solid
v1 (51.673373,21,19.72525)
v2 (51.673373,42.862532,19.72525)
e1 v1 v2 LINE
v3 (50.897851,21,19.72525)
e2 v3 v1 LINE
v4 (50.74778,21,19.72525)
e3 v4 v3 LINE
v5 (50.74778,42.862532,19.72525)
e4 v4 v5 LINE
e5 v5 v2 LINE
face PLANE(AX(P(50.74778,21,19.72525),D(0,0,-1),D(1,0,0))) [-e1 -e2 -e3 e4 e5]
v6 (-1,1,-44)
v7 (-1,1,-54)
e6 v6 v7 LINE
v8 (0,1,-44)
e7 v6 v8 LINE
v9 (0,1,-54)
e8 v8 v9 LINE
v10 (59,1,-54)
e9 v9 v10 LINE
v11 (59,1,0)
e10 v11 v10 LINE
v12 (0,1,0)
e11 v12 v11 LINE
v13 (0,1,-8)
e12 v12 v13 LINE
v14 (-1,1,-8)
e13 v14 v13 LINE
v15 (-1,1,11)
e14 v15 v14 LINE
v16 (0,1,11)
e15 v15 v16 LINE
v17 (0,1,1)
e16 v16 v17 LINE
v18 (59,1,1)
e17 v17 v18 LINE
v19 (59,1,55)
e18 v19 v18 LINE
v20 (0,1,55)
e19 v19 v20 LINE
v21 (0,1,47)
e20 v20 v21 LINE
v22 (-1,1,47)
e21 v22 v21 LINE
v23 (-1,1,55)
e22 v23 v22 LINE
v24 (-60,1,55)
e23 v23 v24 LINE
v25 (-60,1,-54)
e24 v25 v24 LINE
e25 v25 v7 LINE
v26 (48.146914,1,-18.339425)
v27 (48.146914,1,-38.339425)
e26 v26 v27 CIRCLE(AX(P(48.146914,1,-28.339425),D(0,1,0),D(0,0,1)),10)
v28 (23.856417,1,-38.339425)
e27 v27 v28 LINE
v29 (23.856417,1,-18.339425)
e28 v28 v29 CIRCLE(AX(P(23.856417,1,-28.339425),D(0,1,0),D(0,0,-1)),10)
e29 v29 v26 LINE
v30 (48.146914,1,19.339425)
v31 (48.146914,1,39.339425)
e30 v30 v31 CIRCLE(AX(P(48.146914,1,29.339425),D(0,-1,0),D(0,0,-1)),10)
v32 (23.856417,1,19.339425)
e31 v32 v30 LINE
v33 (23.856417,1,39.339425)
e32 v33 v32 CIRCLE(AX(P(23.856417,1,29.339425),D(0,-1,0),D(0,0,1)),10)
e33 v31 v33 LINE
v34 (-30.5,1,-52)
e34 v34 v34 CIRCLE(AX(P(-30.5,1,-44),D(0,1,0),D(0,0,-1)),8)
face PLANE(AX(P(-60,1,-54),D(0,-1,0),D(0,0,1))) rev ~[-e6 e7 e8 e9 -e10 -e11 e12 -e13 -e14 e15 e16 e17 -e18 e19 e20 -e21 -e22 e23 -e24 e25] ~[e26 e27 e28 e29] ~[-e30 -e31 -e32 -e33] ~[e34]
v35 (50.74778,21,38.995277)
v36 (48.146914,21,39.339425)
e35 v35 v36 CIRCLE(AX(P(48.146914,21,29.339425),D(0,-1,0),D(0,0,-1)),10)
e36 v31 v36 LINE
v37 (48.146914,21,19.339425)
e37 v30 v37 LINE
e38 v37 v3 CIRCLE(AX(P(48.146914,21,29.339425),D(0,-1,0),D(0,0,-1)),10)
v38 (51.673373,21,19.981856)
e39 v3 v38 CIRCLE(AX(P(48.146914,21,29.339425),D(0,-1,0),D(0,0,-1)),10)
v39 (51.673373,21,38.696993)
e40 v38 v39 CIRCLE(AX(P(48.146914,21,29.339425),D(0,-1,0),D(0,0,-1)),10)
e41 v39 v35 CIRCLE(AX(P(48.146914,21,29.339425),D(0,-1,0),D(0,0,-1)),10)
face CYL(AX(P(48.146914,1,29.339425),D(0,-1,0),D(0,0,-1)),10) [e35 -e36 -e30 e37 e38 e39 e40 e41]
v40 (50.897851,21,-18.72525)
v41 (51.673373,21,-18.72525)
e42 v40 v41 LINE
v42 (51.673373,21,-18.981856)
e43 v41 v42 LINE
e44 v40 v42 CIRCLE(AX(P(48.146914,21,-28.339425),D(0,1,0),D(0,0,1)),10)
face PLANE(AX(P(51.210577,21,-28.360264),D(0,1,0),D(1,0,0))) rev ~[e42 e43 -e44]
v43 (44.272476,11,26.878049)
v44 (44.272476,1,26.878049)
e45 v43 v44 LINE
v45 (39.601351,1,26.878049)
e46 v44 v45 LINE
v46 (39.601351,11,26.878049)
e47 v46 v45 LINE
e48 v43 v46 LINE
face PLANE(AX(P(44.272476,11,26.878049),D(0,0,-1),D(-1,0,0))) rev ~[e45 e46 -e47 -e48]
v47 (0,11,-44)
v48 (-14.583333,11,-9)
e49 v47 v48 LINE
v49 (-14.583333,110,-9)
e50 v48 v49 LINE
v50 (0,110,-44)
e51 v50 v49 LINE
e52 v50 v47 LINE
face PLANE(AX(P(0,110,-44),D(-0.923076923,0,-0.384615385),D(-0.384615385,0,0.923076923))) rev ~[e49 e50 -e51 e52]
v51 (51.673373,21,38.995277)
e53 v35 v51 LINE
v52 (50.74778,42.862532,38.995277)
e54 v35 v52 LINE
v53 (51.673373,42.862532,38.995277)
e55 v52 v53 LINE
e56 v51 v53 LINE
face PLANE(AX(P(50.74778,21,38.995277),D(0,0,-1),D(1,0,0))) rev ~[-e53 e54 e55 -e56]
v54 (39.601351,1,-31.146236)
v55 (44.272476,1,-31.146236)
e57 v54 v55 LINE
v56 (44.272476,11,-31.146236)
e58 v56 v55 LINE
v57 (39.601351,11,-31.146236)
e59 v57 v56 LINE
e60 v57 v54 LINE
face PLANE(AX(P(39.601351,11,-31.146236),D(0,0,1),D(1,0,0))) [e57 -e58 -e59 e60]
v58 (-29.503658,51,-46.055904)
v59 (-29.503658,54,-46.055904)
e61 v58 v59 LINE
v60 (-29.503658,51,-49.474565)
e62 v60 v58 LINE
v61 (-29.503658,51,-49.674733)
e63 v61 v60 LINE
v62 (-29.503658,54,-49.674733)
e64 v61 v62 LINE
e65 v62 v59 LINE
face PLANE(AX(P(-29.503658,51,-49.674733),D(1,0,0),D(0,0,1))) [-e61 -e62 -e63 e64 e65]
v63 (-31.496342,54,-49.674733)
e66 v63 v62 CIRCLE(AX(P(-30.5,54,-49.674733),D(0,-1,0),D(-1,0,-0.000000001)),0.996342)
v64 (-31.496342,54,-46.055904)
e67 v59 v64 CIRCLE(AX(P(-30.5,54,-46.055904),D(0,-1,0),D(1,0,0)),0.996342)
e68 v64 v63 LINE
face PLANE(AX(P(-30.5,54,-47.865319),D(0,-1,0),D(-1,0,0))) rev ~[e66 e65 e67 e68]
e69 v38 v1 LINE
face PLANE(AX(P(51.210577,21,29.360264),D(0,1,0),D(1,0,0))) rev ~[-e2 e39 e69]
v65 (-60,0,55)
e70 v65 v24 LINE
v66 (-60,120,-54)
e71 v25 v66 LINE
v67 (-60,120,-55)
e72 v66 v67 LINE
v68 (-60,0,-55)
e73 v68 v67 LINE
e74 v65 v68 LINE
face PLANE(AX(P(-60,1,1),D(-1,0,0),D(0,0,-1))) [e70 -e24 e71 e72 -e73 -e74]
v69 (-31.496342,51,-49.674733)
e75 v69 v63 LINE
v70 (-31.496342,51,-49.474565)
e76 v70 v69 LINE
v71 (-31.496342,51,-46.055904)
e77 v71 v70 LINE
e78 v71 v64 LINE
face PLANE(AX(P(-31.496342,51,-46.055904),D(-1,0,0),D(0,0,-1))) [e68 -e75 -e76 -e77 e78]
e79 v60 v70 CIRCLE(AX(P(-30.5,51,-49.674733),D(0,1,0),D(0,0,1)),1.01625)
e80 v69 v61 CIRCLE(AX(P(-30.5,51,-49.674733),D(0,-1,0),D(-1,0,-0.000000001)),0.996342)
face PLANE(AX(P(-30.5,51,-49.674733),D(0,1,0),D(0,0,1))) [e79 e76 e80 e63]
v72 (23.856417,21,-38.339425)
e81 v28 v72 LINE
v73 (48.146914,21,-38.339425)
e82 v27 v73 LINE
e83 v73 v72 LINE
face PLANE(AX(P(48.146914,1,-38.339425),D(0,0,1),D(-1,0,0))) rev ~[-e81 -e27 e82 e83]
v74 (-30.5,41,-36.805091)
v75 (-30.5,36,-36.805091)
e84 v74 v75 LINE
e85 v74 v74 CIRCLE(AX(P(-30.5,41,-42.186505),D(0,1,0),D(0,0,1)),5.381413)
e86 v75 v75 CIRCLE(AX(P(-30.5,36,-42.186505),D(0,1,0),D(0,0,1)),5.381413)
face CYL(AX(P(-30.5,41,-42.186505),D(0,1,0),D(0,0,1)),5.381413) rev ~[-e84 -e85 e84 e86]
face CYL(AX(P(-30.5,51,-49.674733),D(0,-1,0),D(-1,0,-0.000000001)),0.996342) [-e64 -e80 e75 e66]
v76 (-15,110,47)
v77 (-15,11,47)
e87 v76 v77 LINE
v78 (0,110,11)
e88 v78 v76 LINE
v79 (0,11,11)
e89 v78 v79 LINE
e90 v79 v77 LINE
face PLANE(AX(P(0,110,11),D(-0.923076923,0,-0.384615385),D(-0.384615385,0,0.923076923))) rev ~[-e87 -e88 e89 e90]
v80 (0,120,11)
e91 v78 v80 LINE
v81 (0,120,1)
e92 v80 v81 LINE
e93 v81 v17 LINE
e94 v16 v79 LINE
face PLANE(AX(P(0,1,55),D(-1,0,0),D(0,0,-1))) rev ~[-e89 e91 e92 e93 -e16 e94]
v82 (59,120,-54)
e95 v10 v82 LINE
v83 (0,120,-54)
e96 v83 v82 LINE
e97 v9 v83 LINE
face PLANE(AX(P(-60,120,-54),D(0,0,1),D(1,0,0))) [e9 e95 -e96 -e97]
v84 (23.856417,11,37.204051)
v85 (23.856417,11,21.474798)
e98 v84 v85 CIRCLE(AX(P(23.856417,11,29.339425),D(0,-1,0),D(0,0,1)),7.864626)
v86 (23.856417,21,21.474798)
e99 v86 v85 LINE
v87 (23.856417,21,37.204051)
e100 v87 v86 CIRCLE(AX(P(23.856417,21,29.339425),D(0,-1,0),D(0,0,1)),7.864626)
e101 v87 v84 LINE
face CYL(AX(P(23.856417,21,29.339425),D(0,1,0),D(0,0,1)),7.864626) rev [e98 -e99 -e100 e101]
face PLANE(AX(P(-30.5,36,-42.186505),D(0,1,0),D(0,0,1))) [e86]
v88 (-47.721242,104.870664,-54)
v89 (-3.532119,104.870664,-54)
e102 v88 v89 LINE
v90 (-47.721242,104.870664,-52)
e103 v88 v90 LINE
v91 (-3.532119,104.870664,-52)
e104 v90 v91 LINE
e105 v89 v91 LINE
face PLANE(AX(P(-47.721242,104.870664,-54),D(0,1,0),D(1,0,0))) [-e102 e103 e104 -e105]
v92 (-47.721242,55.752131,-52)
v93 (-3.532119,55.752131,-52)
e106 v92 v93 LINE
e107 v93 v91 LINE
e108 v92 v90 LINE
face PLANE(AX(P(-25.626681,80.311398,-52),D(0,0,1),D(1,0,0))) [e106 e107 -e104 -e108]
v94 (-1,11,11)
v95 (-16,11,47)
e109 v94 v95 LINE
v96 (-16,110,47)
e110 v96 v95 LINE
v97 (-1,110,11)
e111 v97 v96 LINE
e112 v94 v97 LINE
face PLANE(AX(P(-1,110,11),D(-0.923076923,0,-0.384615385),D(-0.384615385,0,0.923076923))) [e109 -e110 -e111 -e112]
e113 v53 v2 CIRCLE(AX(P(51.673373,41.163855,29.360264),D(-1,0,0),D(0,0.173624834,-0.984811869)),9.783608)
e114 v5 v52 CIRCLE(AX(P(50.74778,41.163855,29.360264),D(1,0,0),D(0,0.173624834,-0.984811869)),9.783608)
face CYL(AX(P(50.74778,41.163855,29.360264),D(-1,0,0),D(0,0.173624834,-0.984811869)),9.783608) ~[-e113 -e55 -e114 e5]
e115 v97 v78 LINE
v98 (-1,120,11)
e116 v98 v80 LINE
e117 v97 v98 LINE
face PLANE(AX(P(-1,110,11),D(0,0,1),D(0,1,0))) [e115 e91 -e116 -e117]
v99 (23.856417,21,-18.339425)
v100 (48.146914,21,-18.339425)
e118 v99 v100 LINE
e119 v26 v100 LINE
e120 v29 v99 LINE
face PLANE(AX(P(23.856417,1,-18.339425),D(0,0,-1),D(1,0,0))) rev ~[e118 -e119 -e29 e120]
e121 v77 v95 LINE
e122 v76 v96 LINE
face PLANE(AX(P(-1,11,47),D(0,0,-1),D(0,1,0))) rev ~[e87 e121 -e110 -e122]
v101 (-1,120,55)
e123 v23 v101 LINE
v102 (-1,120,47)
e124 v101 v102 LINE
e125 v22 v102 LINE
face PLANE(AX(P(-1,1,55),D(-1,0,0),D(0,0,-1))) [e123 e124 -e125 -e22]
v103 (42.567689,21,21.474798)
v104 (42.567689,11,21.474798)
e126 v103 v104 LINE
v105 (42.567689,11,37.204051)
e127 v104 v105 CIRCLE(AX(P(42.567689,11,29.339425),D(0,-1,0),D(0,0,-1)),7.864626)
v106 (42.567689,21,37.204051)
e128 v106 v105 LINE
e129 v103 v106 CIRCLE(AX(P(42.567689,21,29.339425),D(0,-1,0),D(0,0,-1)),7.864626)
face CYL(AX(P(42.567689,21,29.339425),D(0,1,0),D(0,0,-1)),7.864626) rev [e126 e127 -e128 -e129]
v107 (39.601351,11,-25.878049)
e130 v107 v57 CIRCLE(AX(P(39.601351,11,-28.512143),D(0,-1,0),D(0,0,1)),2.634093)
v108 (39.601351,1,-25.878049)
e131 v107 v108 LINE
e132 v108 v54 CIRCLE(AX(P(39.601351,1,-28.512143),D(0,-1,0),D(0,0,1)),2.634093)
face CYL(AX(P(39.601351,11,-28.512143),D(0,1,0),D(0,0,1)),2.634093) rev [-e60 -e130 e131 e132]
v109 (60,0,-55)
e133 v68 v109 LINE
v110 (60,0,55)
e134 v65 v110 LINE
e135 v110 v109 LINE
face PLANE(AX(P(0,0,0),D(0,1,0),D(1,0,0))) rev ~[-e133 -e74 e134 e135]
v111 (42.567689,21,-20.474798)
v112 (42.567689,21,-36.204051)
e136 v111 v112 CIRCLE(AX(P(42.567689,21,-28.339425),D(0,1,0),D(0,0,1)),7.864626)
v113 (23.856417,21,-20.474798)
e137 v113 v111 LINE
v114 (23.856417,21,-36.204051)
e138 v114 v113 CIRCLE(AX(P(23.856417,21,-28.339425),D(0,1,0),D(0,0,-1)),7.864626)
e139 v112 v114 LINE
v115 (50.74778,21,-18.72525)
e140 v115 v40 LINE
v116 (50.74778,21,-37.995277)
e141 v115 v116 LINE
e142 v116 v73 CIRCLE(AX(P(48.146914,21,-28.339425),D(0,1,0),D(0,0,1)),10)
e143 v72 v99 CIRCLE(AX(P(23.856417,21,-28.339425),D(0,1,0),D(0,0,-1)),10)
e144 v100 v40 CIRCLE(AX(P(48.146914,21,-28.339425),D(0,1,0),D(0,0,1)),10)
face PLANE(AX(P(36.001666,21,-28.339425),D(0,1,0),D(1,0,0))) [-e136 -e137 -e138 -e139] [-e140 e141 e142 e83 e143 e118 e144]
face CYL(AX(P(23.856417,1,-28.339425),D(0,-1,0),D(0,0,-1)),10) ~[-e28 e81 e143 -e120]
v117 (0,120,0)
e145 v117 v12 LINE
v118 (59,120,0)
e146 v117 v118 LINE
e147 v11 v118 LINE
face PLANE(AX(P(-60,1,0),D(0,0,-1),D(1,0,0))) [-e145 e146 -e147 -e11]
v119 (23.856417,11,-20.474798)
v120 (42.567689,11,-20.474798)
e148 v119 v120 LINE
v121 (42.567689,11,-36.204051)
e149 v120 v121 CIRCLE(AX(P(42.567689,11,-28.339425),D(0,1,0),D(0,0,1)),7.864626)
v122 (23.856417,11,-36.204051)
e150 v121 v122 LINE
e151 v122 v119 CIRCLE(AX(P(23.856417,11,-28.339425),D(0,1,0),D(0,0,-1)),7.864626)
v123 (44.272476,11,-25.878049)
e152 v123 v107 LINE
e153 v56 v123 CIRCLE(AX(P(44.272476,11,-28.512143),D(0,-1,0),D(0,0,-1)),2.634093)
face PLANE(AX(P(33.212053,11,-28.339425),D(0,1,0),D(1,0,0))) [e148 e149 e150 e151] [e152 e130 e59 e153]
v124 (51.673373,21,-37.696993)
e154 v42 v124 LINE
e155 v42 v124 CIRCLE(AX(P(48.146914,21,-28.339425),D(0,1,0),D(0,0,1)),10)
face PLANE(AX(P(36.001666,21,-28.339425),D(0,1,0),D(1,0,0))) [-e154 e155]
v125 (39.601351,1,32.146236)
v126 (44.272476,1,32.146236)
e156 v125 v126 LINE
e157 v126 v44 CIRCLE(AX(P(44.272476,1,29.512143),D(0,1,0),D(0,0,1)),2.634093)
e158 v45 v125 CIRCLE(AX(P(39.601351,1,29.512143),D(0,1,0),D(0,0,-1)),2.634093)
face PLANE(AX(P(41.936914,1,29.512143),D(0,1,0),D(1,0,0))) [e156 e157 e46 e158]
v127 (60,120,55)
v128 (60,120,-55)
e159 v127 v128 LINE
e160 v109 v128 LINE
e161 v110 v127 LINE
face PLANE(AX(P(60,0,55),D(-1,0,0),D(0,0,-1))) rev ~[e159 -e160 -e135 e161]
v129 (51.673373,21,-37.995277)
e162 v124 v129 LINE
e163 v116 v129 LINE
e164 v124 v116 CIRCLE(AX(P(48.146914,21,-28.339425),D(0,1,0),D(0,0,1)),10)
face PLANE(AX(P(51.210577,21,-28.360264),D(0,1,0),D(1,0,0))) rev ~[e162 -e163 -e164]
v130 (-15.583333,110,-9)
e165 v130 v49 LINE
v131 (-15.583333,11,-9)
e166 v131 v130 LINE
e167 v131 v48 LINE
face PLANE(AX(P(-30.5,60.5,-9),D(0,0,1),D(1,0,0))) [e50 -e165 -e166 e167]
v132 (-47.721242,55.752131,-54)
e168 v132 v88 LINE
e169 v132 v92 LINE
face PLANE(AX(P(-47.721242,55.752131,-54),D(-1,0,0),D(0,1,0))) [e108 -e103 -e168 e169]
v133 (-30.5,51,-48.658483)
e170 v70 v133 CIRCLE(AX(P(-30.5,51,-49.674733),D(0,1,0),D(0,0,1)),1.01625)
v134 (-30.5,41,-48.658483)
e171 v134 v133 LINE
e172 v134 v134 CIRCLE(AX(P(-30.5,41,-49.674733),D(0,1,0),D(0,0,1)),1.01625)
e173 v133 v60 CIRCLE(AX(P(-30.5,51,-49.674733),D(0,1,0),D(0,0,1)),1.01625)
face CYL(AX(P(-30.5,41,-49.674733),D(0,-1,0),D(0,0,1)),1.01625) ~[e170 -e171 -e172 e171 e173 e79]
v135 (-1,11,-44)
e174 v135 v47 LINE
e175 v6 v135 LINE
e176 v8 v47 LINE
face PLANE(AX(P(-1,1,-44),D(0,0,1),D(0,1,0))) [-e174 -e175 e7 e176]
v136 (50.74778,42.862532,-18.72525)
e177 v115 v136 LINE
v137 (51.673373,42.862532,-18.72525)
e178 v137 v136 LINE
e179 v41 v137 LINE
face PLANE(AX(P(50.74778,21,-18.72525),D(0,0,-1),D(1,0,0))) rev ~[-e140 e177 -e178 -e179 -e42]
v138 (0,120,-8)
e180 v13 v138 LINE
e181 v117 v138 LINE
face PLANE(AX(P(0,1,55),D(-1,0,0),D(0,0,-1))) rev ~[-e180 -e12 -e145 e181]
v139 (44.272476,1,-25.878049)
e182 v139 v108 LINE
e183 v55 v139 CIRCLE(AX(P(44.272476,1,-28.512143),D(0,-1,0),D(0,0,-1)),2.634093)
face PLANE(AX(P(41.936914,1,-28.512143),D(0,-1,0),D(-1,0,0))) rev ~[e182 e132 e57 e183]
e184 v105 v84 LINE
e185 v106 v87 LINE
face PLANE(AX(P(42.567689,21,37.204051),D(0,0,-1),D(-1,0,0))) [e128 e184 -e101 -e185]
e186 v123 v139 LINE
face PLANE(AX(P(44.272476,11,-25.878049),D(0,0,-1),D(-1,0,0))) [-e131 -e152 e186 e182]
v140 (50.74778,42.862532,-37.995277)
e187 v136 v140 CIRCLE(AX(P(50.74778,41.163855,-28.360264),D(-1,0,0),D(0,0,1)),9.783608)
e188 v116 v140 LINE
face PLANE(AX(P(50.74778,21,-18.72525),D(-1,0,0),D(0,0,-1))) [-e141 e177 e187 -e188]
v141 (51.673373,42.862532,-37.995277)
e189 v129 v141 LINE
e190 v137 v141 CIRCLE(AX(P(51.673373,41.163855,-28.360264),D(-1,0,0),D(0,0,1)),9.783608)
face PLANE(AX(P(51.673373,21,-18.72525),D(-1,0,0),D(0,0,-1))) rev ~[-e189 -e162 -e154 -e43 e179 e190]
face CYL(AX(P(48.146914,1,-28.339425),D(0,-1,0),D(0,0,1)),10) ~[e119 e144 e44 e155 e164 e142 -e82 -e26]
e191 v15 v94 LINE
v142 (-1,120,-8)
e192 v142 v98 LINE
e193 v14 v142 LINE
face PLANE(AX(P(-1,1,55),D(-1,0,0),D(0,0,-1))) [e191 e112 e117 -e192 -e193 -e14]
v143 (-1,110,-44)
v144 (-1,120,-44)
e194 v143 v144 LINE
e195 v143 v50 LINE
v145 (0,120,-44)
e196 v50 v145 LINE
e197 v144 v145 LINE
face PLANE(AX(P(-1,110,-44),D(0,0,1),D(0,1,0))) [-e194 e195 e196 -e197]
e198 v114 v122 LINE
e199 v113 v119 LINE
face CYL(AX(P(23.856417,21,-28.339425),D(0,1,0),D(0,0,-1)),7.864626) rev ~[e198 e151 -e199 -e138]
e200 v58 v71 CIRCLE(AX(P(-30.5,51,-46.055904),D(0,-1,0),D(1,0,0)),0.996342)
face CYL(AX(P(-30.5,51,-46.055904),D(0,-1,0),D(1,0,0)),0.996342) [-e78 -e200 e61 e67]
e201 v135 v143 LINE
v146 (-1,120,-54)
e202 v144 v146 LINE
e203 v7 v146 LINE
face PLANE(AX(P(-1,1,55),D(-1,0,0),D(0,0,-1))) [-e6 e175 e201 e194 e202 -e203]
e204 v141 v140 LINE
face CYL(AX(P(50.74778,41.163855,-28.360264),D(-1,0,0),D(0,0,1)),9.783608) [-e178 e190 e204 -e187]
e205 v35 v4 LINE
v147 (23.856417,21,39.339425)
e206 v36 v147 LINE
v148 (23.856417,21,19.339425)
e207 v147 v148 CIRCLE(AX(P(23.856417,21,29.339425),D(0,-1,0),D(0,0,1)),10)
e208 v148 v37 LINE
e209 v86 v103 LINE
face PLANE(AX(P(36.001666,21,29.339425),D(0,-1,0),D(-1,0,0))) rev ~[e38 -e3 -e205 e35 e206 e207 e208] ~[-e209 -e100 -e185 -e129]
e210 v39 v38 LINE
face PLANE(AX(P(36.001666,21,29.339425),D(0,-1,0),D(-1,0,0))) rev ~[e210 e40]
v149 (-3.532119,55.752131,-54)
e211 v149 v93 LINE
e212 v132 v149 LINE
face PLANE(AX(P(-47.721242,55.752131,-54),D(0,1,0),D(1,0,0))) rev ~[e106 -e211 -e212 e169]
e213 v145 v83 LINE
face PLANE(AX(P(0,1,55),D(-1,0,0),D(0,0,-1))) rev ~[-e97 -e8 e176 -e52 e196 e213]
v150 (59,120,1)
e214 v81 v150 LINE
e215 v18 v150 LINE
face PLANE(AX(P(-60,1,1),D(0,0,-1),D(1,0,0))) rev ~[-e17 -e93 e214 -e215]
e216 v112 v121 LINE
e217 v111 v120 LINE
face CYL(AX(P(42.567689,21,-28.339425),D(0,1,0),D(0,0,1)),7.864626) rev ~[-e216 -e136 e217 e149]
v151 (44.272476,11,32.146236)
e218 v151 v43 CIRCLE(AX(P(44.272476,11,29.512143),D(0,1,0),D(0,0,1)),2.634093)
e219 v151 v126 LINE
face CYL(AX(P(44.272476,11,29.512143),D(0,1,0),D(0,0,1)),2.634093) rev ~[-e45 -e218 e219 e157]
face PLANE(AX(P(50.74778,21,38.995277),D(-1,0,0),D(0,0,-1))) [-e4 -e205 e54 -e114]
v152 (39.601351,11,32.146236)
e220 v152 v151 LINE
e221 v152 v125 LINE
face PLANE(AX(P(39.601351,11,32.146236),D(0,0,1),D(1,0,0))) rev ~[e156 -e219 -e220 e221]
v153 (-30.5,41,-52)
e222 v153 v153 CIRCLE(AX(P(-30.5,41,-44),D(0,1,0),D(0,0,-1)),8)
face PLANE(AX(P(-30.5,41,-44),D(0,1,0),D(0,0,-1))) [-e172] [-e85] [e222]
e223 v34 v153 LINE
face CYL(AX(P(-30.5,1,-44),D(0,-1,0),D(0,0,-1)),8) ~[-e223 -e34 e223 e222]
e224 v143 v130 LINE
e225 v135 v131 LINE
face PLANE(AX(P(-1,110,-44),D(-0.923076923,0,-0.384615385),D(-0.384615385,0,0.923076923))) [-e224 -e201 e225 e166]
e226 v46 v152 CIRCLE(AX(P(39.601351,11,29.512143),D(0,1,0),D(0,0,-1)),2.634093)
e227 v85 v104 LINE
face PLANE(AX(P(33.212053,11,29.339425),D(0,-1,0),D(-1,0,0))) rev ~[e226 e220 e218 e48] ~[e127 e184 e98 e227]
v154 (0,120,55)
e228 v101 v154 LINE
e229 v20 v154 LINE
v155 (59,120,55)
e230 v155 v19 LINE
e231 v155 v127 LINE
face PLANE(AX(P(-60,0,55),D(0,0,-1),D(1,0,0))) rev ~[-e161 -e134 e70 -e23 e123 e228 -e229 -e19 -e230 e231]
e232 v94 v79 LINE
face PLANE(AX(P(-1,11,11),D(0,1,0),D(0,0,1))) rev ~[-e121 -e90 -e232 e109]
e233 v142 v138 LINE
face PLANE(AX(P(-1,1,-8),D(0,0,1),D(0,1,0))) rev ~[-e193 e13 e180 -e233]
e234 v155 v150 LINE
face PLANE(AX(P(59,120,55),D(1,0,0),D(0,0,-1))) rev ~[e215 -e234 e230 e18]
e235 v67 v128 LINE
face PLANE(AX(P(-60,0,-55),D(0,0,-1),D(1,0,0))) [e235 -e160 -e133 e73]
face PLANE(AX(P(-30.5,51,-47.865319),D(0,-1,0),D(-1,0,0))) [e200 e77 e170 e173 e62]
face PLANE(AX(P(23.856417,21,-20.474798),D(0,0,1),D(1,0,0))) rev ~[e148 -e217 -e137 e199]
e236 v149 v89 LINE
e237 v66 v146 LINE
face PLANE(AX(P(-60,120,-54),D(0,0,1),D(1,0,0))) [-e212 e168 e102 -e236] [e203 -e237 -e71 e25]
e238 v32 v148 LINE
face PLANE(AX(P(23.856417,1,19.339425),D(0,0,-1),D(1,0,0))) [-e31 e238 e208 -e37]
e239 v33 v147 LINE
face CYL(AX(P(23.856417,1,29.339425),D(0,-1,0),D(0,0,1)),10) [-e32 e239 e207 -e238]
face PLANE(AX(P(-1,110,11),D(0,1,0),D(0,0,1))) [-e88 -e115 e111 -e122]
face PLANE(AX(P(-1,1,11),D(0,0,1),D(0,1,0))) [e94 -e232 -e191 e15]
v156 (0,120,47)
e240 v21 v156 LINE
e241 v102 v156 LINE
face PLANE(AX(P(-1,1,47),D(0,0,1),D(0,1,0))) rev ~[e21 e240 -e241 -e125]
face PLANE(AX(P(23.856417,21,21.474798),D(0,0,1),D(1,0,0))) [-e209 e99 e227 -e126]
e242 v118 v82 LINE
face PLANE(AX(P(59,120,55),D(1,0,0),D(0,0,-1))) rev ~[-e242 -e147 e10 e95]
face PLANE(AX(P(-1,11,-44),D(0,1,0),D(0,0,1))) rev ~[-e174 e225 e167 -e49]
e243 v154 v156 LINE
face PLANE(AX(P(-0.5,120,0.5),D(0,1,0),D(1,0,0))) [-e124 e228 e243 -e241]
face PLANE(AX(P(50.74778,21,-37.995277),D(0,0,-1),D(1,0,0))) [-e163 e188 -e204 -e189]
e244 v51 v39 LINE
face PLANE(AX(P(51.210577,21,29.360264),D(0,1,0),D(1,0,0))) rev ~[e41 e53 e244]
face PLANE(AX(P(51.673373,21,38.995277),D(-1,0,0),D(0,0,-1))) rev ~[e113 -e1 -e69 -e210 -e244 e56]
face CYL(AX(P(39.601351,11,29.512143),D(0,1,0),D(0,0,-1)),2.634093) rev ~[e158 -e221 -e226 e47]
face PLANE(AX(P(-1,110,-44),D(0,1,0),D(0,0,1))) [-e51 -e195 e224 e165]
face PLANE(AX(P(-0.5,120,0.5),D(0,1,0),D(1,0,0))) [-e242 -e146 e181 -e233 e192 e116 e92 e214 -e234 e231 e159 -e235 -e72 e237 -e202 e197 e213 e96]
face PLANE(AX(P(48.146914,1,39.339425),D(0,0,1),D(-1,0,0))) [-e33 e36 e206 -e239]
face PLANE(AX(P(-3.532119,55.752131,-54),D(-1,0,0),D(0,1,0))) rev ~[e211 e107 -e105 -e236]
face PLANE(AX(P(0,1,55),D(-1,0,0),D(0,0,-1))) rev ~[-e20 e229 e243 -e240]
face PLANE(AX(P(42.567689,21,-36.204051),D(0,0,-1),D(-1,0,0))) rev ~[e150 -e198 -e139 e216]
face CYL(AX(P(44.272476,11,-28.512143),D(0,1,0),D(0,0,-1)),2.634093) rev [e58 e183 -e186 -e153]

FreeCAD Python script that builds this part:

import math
import FreeCAD as App
import Part
import Sketcher

V = App.Vector
Q = App.Units.Quantity


def add_polygon(sketch, points):
    """Adds a closed chain of lines whose ends are joined by coincident constraints."""
    first, n = sketch.GeometryCount, len(points)
    for a, b in zip(points, points[1:] + points[:1]):
        sketch.addGeometry(Part.LineSegment(App.Vector(*a, 0), App.Vector(*b, 0)), False)
    for i in range(n):
        sketch.addConstraint(Sketcher.Constraint("Coincident", first + i, 2, first + (i + 1) % n, 1))

doc = App.newDocument("Part")
body = doc.addObject("PartDesign::Body", "Body")

# Sketch on XZ plane
sketch1 = body.newObject("Sketcher::SketchObject", "Sketch")
sketch1.AttachmentSupport = (doc.getObject("XZ_Plane"), [""])
sketch1.MapMode = "FlatFace"
add_polygon(sketch1, [(-60, -55), (-60, 55), (60, 55), (60, -55)])  # lines 0-3
sketch1.addConstraint([
    Sketcher.Constraint("Vertical", 0),
    Sketcher.Constraint("Horizontal", 1),
    Sketcher.Constraint("Vertical", 2),
    Sketcher.Constraint("Horizontal", 3),
    Sketcher.Constraint("Symmetric", 0, 2, 2, 2, -1, 1),
    Sketcher.Constraint("DistanceX", 1, 1, 1, 2, Q("120 mm")),
    Sketcher.Constraint("DistanceY", 0, 1, 0, 2, Q("110 mm")),
])
pad1 = body.newObject("PartDesign::Pad", "Pad")
pad1.Profile = sketch1
pad1.Length = 120
pad1.Reversed = True

# Sketch on XY plane
sketch2 = body.newObject("Sketcher::SketchObject", "Sketch001")
sketch2.AttachmentSupport = (doc.getObject("XY_Plane"), [""])
sketch2.MapMode = "FlatFace"
sketch2.AttachmentOffset = App.Placement(V(0, 0, 55), App.Rotation())
add_polygon(sketch2, [(-59, 119), (-59, 1), (59, 1), (59, 119)])  # lines 0-3
sketch2.addConstraint([
    Sketcher.Constraint("Vertical", 0),
    Sketcher.Constraint("Horizontal", 1),
    Sketcher.Constraint("Vertical", 2),
    Sketcher.Constraint("Horizontal", 3),
    Sketcher.Constraint("Equal", 3, 0),
    Sketcher.Constraint("DistanceX", 1, 1, 1, 2, Q("118 mm")),
    Sketcher.Constraint("DistanceX", 0, 2, -1, 1, Q("59 mm")),
    Sketcher.Constraint("DistanceY", -1, 1, 0, 2, Q("1 mm")),
])
pocket1 = body.newObject("PartDesign::Pocket", "Pocket")
pocket1.Profile = sketch2
pocket1.Length = 109

# Sketch on YZ plane
sketch3 = body.newObject("Sketcher::SketchObject", "Sketch002")
sketch3.AttachmentSupport = (doc.getObject("YZ_Plane"), [""])
sketch3.MapMode = "FlatFace"
sketch3.AttachmentOffset = App.Placement(V(0, 0, -60), App.Rotation())
add_polygon(sketch3, [(119, -54), (1, -54), (1, 55), (119, 55)])  # lines 0-3
sketch3.addConstraint([
    Sketcher.Constraint("Horizontal", 0),
    Sketcher.Constraint("Vertical", 1),
    Sketcher.Constraint("Horizontal", 2),
    Sketcher.Constraint("Vertical", 3),
    Sketcher.Constraint("DistanceX", 0, 2, 0, 1, Q("118 mm")),
    Sketcher.Constraint("DistanceY", 1, 1, 1, 2, Q("109 mm")),
    Sketcher.Constraint("DistanceX", -1, 1, 0, 2, Q("1 mm")),
    Sketcher.Constraint("DistanceY", 0, 2, -1, 1, Q("54 mm")),
])
pocket2 = body.newObject("PartDesign::Pocket", "Pocket001")
pocket2.Profile = sketch3
pocket2.Length = 109
pocket2.Reversed = True

# Sketch on XZ plane
sketch4 = body.newObject("Sketcher::SketchObject", "Sketch003")
sketch4.AttachmentSupport = (doc.getObject("XZ_Plane"), [""])
sketch4.MapMode = "FlatFace"
sketch4.AttachmentOffset = App.Placement(V(0, 0, -120), App.Rotation())
add_polygon(sketch4, [(-60, -54), (-60, 55), (59, 55), (59, -54)])  # lines 0-3
sketch4.addConstraint([
    Sketcher.Constraint("Vertical", 0),
    Sketcher.Constraint("Horizontal", 1),
    Sketcher.Constraint("Vertical", 2),
    Sketcher.Constraint("Horizontal", 3),
    Sketcher.Constraint("DistanceX", 1, 1, 1, 2, Q("119 mm")),
    Sketcher.Constraint("DistanceY", 0, 1, 0, 2, Q("109 mm")),
    Sketcher.Constraint("DistanceX", 0, 2, -1, 1, Q("60 mm")),
    Sketcher.Constraint("DistanceY", -1, 1, 0, 2, Q("55 mm")),
])
pocket3 = body.newObject("PartDesign::Pocket", "Pocket002")
pocket3.Profile = sketch4
pocket3.Length = 109
pocket3.Reversed = True

# Sketch on XZ plane
sketch5 = body.newObject("Sketcher::SketchObject", "Sketch004")
sketch5.AttachmentSupport = (doc.getObject("XZ_Plane"), [""])
sketch5.MapMode = "FlatFace"
sketch5.AttachmentOffset = App.Placement(V(0, 0, -1), App.Rotation())
add_polygon(sketch5, [(-1, -54), (-1, 55), (0, 55), (0, -54)])  # lines 0-3
sketch5.addConstraint([
    Sketcher.Constraint("Vertical", 0),
    Sketcher.Constraint("Horizontal", 1),
    Sketcher.Constraint("Vertical", 2),
    Sketcher.Constraint("Horizontal", 3),
    Sketcher.Constraint("PointOnObject", 1, 2, -2),
    Sketcher.Constraint("DistanceX", 1, 1, 1, 2, Q("1 mm")),
    Sketcher.Constraint("DistanceY", 0, 1, 0, 2, Q("109 mm")),
    Sketcher.Constraint("DistanceY", -1, 1, 0, 2, Q("55 mm")),
])
pad2 = body.newObject("PartDesign::Pad", "Pad001")
pad2.Profile = sketch5
pad2.Length = 119
pad2.Reversed = True

# Sketch on XZ plane
sketch6 = body.newObject("Sketcher::SketchObject", "Sketch005")
sketch6.AttachmentSupport = (doc.getObject("XZ_Plane"), [""])
sketch6.MapMode = "FlatFace"
sketch6.AttachmentOffset = App.Placement(V(0, 0, -1), App.Rotation())
add_polygon(sketch6, [(-60, 0), (-60, 1), (59, 1), (59, 0)])  # lines 0-3
sketch6.addConstraint([
    Sketcher.Constraint("Vertical", 0),
    Sketcher.Constraint("Horizontal", 1),
    Sketcher.Constraint("Vertical", 2),
    Sketcher.Constraint("Horizontal", 3),
    Sketcher.Constraint("PointOnObject", 2, 2, -1),
    Sketcher.Constraint("DistanceX", 1, 1, 1, 2, Q("119 mm")),
    Sketcher.Constraint("DistanceY", 0, 1, 0, 2, Q("1 mm")),
    Sketcher.Constraint("DistanceX", 0, 2, -1, 1, Q("60 mm")),
])
pad3 = body.newObject("PartDesign::Pad", "Pad002")
pad3.Profile = sketch6
pad3.Length = 119
pad3.Reversed = True

# Sketch on YZ plane
sketch7 = body.newObject("Sketcher::SketchObject", "Sketch006")
sketch7.AttachmentSupport = (doc.getObject("YZ_Plane"), [""])
sketch7.MapMode = "FlatFace"
sketch7.AttachmentOffset = App.Placement(V(0, 0, -1), App.Rotation())
add_polygon(sketch7, [(120, -44), (110, -44), (110, -8), (120, -8)])  # lines 0-3
add_polygon(sketch7, [(11, -44), (1, -44), (1, -8), (11, -8)])  # lines 4-7
sketch7.addConstraint([
    Sketcher.Constraint("Horizontal", 0),
    Sketcher.Constraint("Vertical", 1),
    Sketcher.Constraint("Horizontal", 2),
    Sketcher.Constraint("Vertical", 3),
    Sketcher.Constraint("Horizontal", 4),
    Sketcher.Constraint("Vertical", 5),
    Sketcher.Constraint("Horizontal", 6),
    Sketcher.Constraint("Vertical", 7),
    Sketcher.Constraint("Horizontal", 3, 2, 4, 2),
    Sketcher.Constraint("Horizontal", 2, 2, 5, 2),
    Sketcher.Constraint("Equal", 2, 4),
    Sketcher.Constraint("DistanceX", 0, 2, 0, 1, Q("10 mm")),
    Sketcher.Constraint("DistanceY", 1, 1, 1, 2, Q("36 mm")),
    Sketcher.Constraint("DistanceX", -1, 1, 0, 2, Q("110 mm")),
    Sketcher.Constraint("DistanceY", 0, 2, -1, 1, Q("44 mm")),
    Sketcher.Constraint("DistanceX", -1, 1, 4, 2, Q("1 mm")),
])
pocket4 = body.newObject("PartDesign::Pocket", "Pocket003")
pocket4.Profile = sketch7
pocket4.Length = 39
pocket4.Reversed = True

# Sketch on YZ plane
sketch8 = body.newObject("Sketcher::SketchObject", "Sketch007")
sketch8.AttachmentSupport = (doc.getObject("YZ_Plane"), [""])
sketch8.MapMode = "FlatFace"
sketch8.AttachmentOffset = App.Placement(V(0, 0, -1), App.Rotation())
add_polygon(sketch8, [(120, 11), (110, 11), (110, 47), (120, 47)])  # lines 0-3
add_polygon(sketch8, [(11, 11), (1, 11), (1, 47), (11, 47)])  # lines 4-7
sketch8.addConstraint([
    Sketcher.Constraint("Horizontal", 0),
    Sketcher.Constraint("Vertical", 1),
    Sketcher.Constraint("Horizontal", 2),
    Sketcher.Constraint("Vertical", 3),
    Sketcher.Constraint("Horizontal", 4),
    Sketcher.Constraint("Vertical", 5),
    Sketcher.Constraint("Horizontal", 6),
    Sketcher.Constraint("Vertical", 7),
    Sketcher.Constraint("Horizontal", 3, 2, 4, 2),
    Sketcher.Constraint("Horizontal", 2, 2, 5, 2),
    Sketcher.Constraint("Equal", 2, 4),
    Sketcher.Constraint("DistanceX", 0, 2, 0, 1, Q("10 mm")),
    Sketcher.Constraint("DistanceY", 1, 1, 1, 2, Q("36 mm")),
    Sketcher.Constraint("DistanceX", -1, 1, 0, 2, Q("110 mm")),
    Sketcher.Constraint("DistanceY", -1, 1, 0, 2, Q("11 mm")),
    Sketcher.Constraint("DistanceX", -1, 1, 4, 2, Q("1 mm")),
])
pocket5 = body.newObject("PartDesign::Pocket", "Pocket004")
pocket5.Profile = sketch8
pocket5.Length = 39
pocket5.Reversed = True

# Sketch on YZ plane
sketch9 = body.newObject("Sketcher::SketchObject", "Sketch008")
sketch9.AttachmentSupport = (doc.getObject("YZ_Plane"), [""])
sketch9.MapMode = "FlatFace"
sketch9.AttachmentOffset = App.Placement(V(0, 0, -1), App.Rotation())
add_polygon(sketch9, [(110, -44), (11, -44), (11, -8), (110, -8)])  # lines 0-3
sketch9.addConstraint([
    Sketcher.Constraint("Horizontal", 0),
    Sketcher.Constraint("Vertical", 1),
    Sketcher.Constraint("Horizontal", 2),
    Sketcher.Constraint("Vertical", 3),
    Sketcher.Constraint("DistanceX", 0, 2, 0, 1, Q("99 mm")),
    Sketcher.Constraint("DistanceY", 1, 1, 1, 2, Q("36 mm")),
    Sketcher.Constraint("DistanceX", -1, 1, 0, 2, Q("11 mm")),
    Sketcher.Constraint("DistanceY", 0, 2, -1, 1, Q("44 mm")),
])
pad4 = body.newObject("PartDesign::Pad", "Pad003")
pad4.Profile = sketch9
pad4.Length = 30
pad4.Reversed = True

# Sketch on XZ plane
sketch10 = body.newObject("Sketcher::SketchObject", "Sketch009")
sketch10.AttachmentSupport = (doc.getObject("XZ_Plane"), [""])
sketch10.MapMode = "FlatFace"
sketch10.AttachmentOffset = App.Placement(V(0, 0, -110), App.Rotation())
add_polygon(sketch10, [(-16, -8), (-1, -44), (-31, -44), (-31, -8)])  # lines 0-3
add_polygon(sketch10, [(0, -44), (-15, -8), (0, -8)])  # lines 4-6
sketch10.addConstraint([
    Sketcher.Constraint("Horizontal", 1),
    Sketcher.Constraint("Vertical", 2),
    Sketcher.Constraint("Horizontal", 3),
    Sketcher.Constraint("Horizontal", 5),
    Sketcher.Constraint("Vertical", 6),
    Sketcher.Constraint("PointOnObject", 5, 2, -2),
    Sketcher.Constraint("Parallel", 0, 4),
    Sketcher.Constraint("Horizontal", 3, 2, 4, 2),
    Sketcher.Constraint("Horizontal", 1, 2, 6, 2),
    Sketcher.Constraint("Equal", 3, 5),
    Sketcher.Constraint("DistanceX", 1, 2, 1, 1, Q("30 mm")),
    Sketcher.Constraint("DistanceY", 2, 1, 2, 2, Q("36 mm")),
    Sketcher.Constraint("DistanceX", 0, 2, -1, 1, Q("1 mm")),
    Sketcher.Constraint("DistanceY", 0, 2, -1, 1, Q("44 mm")),
])
pocket6 = body.newObject("PartDesign::Pocket", "Pocket005")
pocket6.Profile = sketch10
pocket6.Length = 100
pocket6.Reversed = True

# Sketch on YZ plane
sketch11 = body.newObject("Sketcher::SketchObject", "Sketch010")
sketch11.AttachmentSupport = (doc.getObject("YZ_Plane"), [""])
sketch11.MapMode = "FlatFace"
sketch11.AttachmentOffset = App.Placement(V(0, 0, -1), App.Rotation())
add_polygon(sketch11, [(110, 11), (11, 11), (11, 47), (110, 47)])  # lines 0-3
sketch11.addConstraint([
    Sketcher.Constraint("Horizontal", 0),
    Sketcher.Constraint("Vertical", 1),
    Sketcher.Constraint("Horizontal", 2),
    Sketcher.Constraint("Vertical", 3),
    Sketcher.Constraint("DistanceX", 0, 2, 0, 1, Q("99 mm")),
    Sketcher.Constraint("DistanceY", 1, 1, 1, 2, Q("36 mm")),
    Sketcher.Constraint("DistanceX", -1, 1, 0, 2, Q("11 mm")),
    Sketcher.Constraint("DistanceY", -1, 1, 0, 2, Q("11 mm")),
])
pad5 = body.newObject("PartDesign::Pad", "Pad004")
pad5.Profile = sketch11
pad5.Length = 30
pad5.Reversed = True

# Sketch on XZ plane
sketch12 = body.newObject("Sketcher::SketchObject", "Sketch011")
sketch12.AttachmentSupport = (doc.getObject("XZ_Plane"), [""])
sketch12.MapMode = "FlatFace"
sketch12.AttachmentOffset = App.Placement(V(0, 0, -110), App.Rotation())
add_polygon(sketch12, [(-16, 47), (-1, 11), (-31, 11), (-31, 47)])  # lines 0-3
add_polygon(sketch12, [(0, 11), (-15, 47), (0, 47)])  # lines 4-6
sketch12.addConstraint([
    Sketcher.Constraint("Horizontal", 1),
    Sketcher.Constraint("Vertical", 2),
    Sketcher.Constraint("Horizontal", 3),
    Sketcher.Constraint("Horizontal", 5),
    Sketcher.Constraint("Vertical", 6),
    Sketcher.Constraint("PointOnObject", 5, 2, -2),
    Sketcher.Constraint("Parallel", 0, 4),
    Sketcher.Constraint("Horizontal", 3, 2, 4, 2),
    Sketcher.Constraint("Horizontal", 1, 2, 6, 2),
    Sketcher.Constraint("Equal", 3, 5),
    Sketcher.Constraint("DistanceX", 1, 2, 1, 1, Q("30 mm")),
    Sketcher.Constraint("DistanceY", 2, 1, 2, 2, Q("36 mm")),
    Sketcher.Constraint("DistanceX", 0, 2, -1, 1, Q("1 mm")),
    Sketcher.Constraint("DistanceY", -1, 1, 0, 2, Q("11 mm")),
])
pocket7 = body.newObject("PartDesign::Pocket", "Pocket006")
pocket7.Profile = sketch12
pocket7.Length = 100
pocket7.Reversed = True

# Sketch on XZ plane
sketch13 = body.newObject("Sketcher::SketchObject", "Sketch012")
sketch13.AttachmentSupport = (doc.getObject("XZ_Plane"), [""])
sketch13.MapMode = "FlatFace"
sketch13.AttachmentOffset = App.Placement(V(0, 0, -1), App.Rotation())
sketch13.addGeometry([
    Part.LineSegment(V(24, 39, 0), V(48, 39, 0)),  # 0
    Part.ArcOfCircle(Part.Circle(V(48, 29, 0), V(0, 0, 1), 10), math.radians(-90), math.radians(90)),  # 1
    Part.LineSegment(V(48, 19, 0), V(24, 19, 0)),  # 2
    Part.ArcOfCircle(Part.Circle(V(24, 29, 0), V(0, 0, 1), 10), math.radians(90), math.radians(270)),  # 3
    Part.LineSegment(V(48, -38, 0), V(24, -38, 0)),  # 4
    Part.ArcOfCircle(Part.Circle(V(24, -28, 0), V(0, 0, 1), 10), math.radians(90), math.radians(270)),  # 5
    Part.LineSegment(V(24, -18, 0), V(48, -18, 0)),  # 6
    Part.ArcOfCircle(Part.Circle(V(48, -28, 0), V(0, 0, 1), 10), math.radians(-90), math.radians(90)),  # 7
], False)
sketch13.addConstraint([
    Sketcher.Constraint("Tangent", 0, 2, 1, 2),
    Sketcher.Constraint("Tangent", 1, 1, 2, 1),
    Sketcher.Constraint("Tangent", 2, 2, 3, 2),
    Sketcher.Constraint("Tangent", 3, 1, 0, 1),
    Sketcher.Constraint("Tangent", 4, 2, 5, 2),
    Sketcher.Constraint("Tangent", 5, 1, 6, 1),
    Sketcher.Constraint("Tangent", 6, 2, 7, 2),
    Sketcher.Constraint("Tangent", 7, 1, 4, 1),
    Sketcher.Constraint("Horizontal", 0),
    Sketcher.Constraint("Horizontal", 2),
    Sketcher.Constraint("Horizontal", 4),
    Sketcher.Constraint("Horizontal", 6),
    Sketcher.Constraint("Equal", 3, 5),
    Sketcher.Constraint("Vertical", 3, 3, 5, 3),
    Sketcher.Constraint("Vertical", 1, 3, 7, 3),
    Sketcher.Constraint("Radius", 1, Q("10 mm")),
    Sketcher.Constraint("DistanceX", 0, 1, 0, 2, Q("24.290497 mm")),
    Sketcher.Constraint("DistanceY", 5, 3, 3, 3, Q("57.678849 mm")),
    Sketcher.Constraint("DistanceX", -1, 1, 1, 3, Q("48.146914 mm")),
    Sketcher.Constraint("DistanceY", -1, 1, 1, 3, Q("29.339425 mm")),
])
pad6 = body.newObject("PartDesign::Pad", "Pad005")
pad6.Profile = sketch13
pad6.Length = 20
pad6.Reversed = True

# Sketch on XZ plane
sketch14 = body.newObject("Sketcher::SketchObject", "Sketch013")
sketch14.AttachmentSupport = (doc.getObject("XZ_Plane"), [""])
sketch14.MapMode = "FlatFace"
sketch14.AttachmentOffset = App.Placement(V(0, 0, -21), App.Rotation())
sketch14.addGeometry([
    Part.LineSegment(V(43, 21, 0), V(24, 21, 0)),  # 0
    Part.ArcOfCircle(Part.Circle(V(24, 29, 0), V(0, 0, 1), 8), math.radians(90), math.radians(270)),  # 1
    Part.LineSegment(V(24, 37, 0), V(43, 37, 0)),  # 2
    Part.ArcOfCircle(Part.Circle(V(43, 29, 0), V(0, 0, 1), 8), math.radians(-90), math.radians(90)),  # 3
    Part.LineSegment(V(24, -20, 0), V(43, -20, 0)),  # 4
    Part.ArcOfCircle(Part.Circle(V(43, -28, 0), V(0, 0, 1), 8), math.radians(-90), math.radians(90)),  # 5
    Part.LineSegment(V(43, -36, 0), V(24, -36, 0)),  # 6
    Part.ArcOfCircle(Part.Circle(V(24, -28, 0), V(0, 0, 1), 8), math.radians(90), math.radians(270)),  # 7
], False)
sketch14.addConstraint([
    Sketcher.Constraint("Tangent", 0, 2, 1, 2),
    Sketcher.Constraint("Tangent", 1, 1, 2, 1),
    Sketcher.Constraint("Tangent", 2, 2, 3, 2),
    Sketcher.Constraint("Tangent", 3, 1, 0, 1),
    Sketcher.Constraint("Tangent", 4, 2, 5, 2),
    Sketcher.Constraint("Tangent", 5, 1, 6, 1),
    Sketcher.Constraint("Tangent", 6, 2, 7, 2),
    Sketcher.Constraint("Tangent", 7, 1, 4, 1),
    Sketcher.Constraint("Horizontal", 0),
    Sketcher.Constraint("Horizontal", 2),
    Sketcher.Constraint("Horizontal", 4),
    Sketcher.Constraint("Horizontal", 6),
    Sketcher.Constraint("Equal", 3, 5),
    Sketcher.Constraint("Vertical", 3, 3, 5, 3),
    Sketcher.Constraint("Vertical", 1, 3, 7, 3),
    Sketcher.Constraint("Radius", 1, Q("7.864626 mm")),
    Sketcher.Constraint("DistanceY", -1, 1, 0, 2, Q("21.474798 mm")),
    Sketcher.Constraint("DistanceY", 4, 2, -1, 1, Q("20.474798 mm")),
    Sketcher.Constraint("DistanceX", 0, 2, 0, 1, Q("18.711272 mm")),
    Sketcher.Constraint("DistanceX", -1, 1, 3, 3, Q("42.567689 mm")),
])
pocket8 = body.newObject("PartDesign::Pocket", "Pocket007")
pocket8.Profile = sketch14
pocket8.Length = 10
pocket8.Reversed = True

# Sketch on XZ plane
sketch15 = body.newObject("Sketcher::SketchObject", "Sketch014")
sketch15.AttachmentSupport = (doc.getObject("XZ_Plane"), [""])
sketch15.MapMode = "FlatFace"
sketch15.AttachmentOffset = App.Placement(V(0, 0, -11), App.Rotation())
sketch15.addGeometry([
    Part.LineSegment(V(44.3, -31.1, 0), V(39.6, -31.1, 0)),  # 0
    Part.ArcOfCircle(Part.Circle(V(39.6, -28.5, 0), V(0, 0, 1), 2.6), math.radians(90), math.radians(270)),  # 1
    Part.LineSegment(V(39.6, -25.9, 0), V(44.3, -25.9, 0)),  # 2
    Part.ArcOfCircle(Part.Circle(V(44.3, -28.5, 0), V(0, 0, 1), 2.6), math.radians(-90), math.radians(90)),  # 3
    Part.LineSegment(V(39.6, 32.1, 0), V(44.3, 32.1, 0)),  # 4
    Part.ArcOfCircle(Part.Circle(V(44.3, 29.5, 0), V(0, 0, 1), 2.6), math.radians(-90), math.radians(90)),  # 5
    Part.LineSegment(V(44.3, 26.9, 0), V(39.6, 26.9, 0)),  # 6
    Part.ArcOfCircle(Part.Circle(V(39.6, 29.5, 0), V(0, 0, 1), 2.6), math.radians(90), math.radians(270)),  # 7
], False)
sketch15.addConstraint([
    Sketcher.Constraint("Tangent", 0, 2, 1, 2),
    Sketcher.Constraint("Tangent", 1, 1, 2, 1),
    Sketcher.Constraint("Tangent", 2, 2, 3, 2),
    Sketcher.Constraint("Tangent", 3, 1, 0, 1),
    Sketcher.Constraint("Tangent", 4, 2, 5, 2),
    Sketcher.Constraint("Tangent", 5, 1, 6, 1),
    Sketcher.Constraint("Tangent", 6, 2, 7, 2),
    Sketcher.Constraint("Tangent", 7, 1, 4, 1),
    Sketcher.Constraint("Horizontal", 0),
    Sketcher.Constraint("Horizontal", 2),
    Sketcher.Constraint("Horizontal", 4),
    Sketcher.Constraint("Horizontal", 6),
    Sketcher.Constraint("Equal", 3, 5),
    Sketcher.Constraint("Vertical", 3, 3, 5, 3),
    Sketcher.Constraint("Vertical", 1, 3, 7, 3),
    Sketcher.Constraint("Radius", 1, Q("2.634093 mm")),
    Sketcher.Constraint("DistanceY", 2, 2, 5, 1, Q("52.756099 mm")),
    Sketcher.Constraint("DistanceX", 0, 2, 0, 1, Q("4.671125 mm")),
    Sketcher.Constraint("DistanceX", -1, 1, 1, 3, Q("39.601351 mm")),
    Sketcher.Constraint("DistanceY", 1, 1, -1, 1, Q("25.878049 mm")),
])
pocket9 = body.newObject("PartDesign::Pocket", "Pocket008")
pocket9.Profile = sketch15
pocket9.Length = 10
pocket9.Reversed = True

# Sketch on XZ plane
sketch16 = body.newObject("Sketcher::SketchObject", "Sketch015")
sketch16.AttachmentSupport = (doc.getObject("XZ_Plane"), [""])
sketch16.MapMode = "FlatFace"
sketch16.AttachmentOffset = App.Placement(V(0, 0, -21), App.Rotation())
add_polygon(sketch16, [(50.7, 19.7), (50.7, 39), (51.7, 39), (51.7, 19.7)])  # lines 0-3
add_polygon(sketch16, [(50.7, -38), (50.7, -18.7), (51.7, -18.7), (51.7, -38)])  # lines 4-7
sketch16.addConstraint([
    Sketcher.Constraint("Vertical", 0),
    Sketcher.Constraint("Horizontal", 1),
    Sketcher.Constraint("Vertical", 2),
    Sketcher.Constraint("Horizontal", 3),
    Sketcher.Constraint("Vertical", 4),
    Sketcher.Constraint("Horizontal", 5),
    Sketcher.Constraint("Vertical", 6),
    Sketcher.Constraint("Horizontal", 7),
    Sketcher.Constraint("Vertical", 3, 2, 4, 2),
    Sketcher.Constraint("Vertical", 2, 2, 5, 2),
    Sketcher.Constraint("Equal", 2, 4),
    Sketcher.Constraint("DistanceY", 4, 2, 3, 2, Q("38.450501 mm")),
    Sketcher.Constraint("DistanceX", 1, 1, 1, 2, Q("0.925593 mm")),
    Sketcher.Constraint("DistanceY", 0, 1, 0, 2, Q("19.270027 mm")),
    Sketcher.Constraint("DistanceX", -1, 1, 0, 2, Q("50.74778 mm")),
    Sketcher.Constraint("DistanceY", -1, 1, 2, 2, Q("19.72525 mm")),
])
pad7 = body.newObject("PartDesign::Pad", "Pad006")
pad7.Profile = sketch16
pad7.Length = 30
pad7.Reversed = True

# Sketch on YZ plane
sketch17 = body.newObject("Sketcher::SketchObject", "Sketch016")
sketch17.AttachmentSupport = (doc.getObject("YZ_Plane"), [""])
sketch17.MapMode = "FlatFace"
sketch17.AttachmentOffset = App.Placement(V(0, 0, 50.74778), App.Rotation())
sketch17.addGeometry([
    Part.LineSegment(V(51, 20, 0), V(43, 20, 0)),  # 0
    Part.ArcOfCircle(Part.Circle(V(41, 29, 0), V(0, 0, 1), 10), math.radians(-80), math.radians(80)),  # 1
    Part.LineSegment(V(43, 39, 0), V(51, 39, 0)),  # 2
    Part.LineSegment(V(51, 39, 0), V(51, 20, 0)),  # 3
    Part.LineSegment(V(57, -38, 0), V(41, -38, 0)),  # 4
    Part.ArcOfCircle(Part.Circle(V(41, -28, 0), V(0, 0, 1), 10), math.radians(-90), math.radians(90)),  # 5
    Part.LineSegment(V(41, -19, 0), V(57, -19, 0)),  # 6
    Part.LineSegment(V(57, -19, 0), V(57, -38, 0)),  # 7
], False)
sketch17.addConstraint([
    Sketcher.Constraint("Coincident", 0, 2, 1, 1),
    Sketcher.Constraint("Coincident", 1, 2, 2, 1),
    Sketcher.Constraint("Coincident", 2, 2, 3, 1),
    Sketcher.Constraint("Coincident", 3, 2, 0, 1),
    Sketcher.Constraint("Tangent", 4, 2, 5, 1),
    Sketcher.Constraint("Tangent", 5, 2, 6, 1),
    Sketcher.Constraint("Coincident", 6, 2, 7, 1),
    Sketcher.Constraint("Coincident", 7, 2, 4, 1),
    Sketcher.Constraint("Horizontal", 0),
    Sketcher.Constraint("Horizontal", 2),
    Sketcher.Constraint("Vertical", 3),
    Sketcher.Constraint("Horizontal", 4),
    Sketcher.Constraint("Horizontal", 6),
    Sketcher.Constraint("Vertical", 7),
    Sketcher.Constraint("Equal", 1, 5),
    Sketcher.Constraint("Vertical", 1, 3, 5, 3),
    Sketcher.Constraint("Vertical", 0, 2, 1, 2),
    Sketcher.Constraint("DistanceX", -1, 1, 2, 2, Q("51 mm")),
    Sketcher.Constraint("Radius", 1, Q("9.783608 mm")),
    Sketcher.Constraint("DistanceX", 0, 2, 0, 1, Q("8.137468 mm")),
    Sketcher.Constraint("DistanceX", 4, 2, 4, 1, Q("16.252403 mm")),
    Sketcher.Constraint("DistanceY", 3, 2, 3, 1, Q("19.270027 mm")),
    Sketcher.Constraint("DistanceY", -1, 1, 0, 2, Q("19.72525 mm")),
    Sketcher.Constraint("DistanceY", 5, 3, 1, 2, Q("67.355541 mm")),
])
pocket10 = body.newObject("PartDesign::Pocket", "Pocket009")
pocket10.Profile = sketch17
pocket10.Length = 5
pocket10.Reversed = True

# Sketch on XZ plane
sketch18 = body.newObject("Sketcher::SketchObject", "Sketch017")
sketch18.AttachmentSupport = (doc.getObject("XZ_Plane"), [""])
sketch18.MapMode = "FlatFace"
sketch18.AttachmentOffset = App.Placement(V(0, 0, -1), App.Rotation())
sketch18.addGeometry(Part.Circle(V(-30, -44, 0), V(0, 0, 1), 8), False)
sketch18.addConstraint([
    Sketcher.Constraint("Diameter", 0, Q("16 mm")),
    Sketcher.Constraint("DistanceY", 0, 3, -1, 1, Q("44 mm")),
    Sketcher.Constraint("DistanceX", 0, 3, -1, 1, Q("30.5 mm")),
])
pad8 = body.newObject("PartDesign::Pad", "Pad007")
pad8.Profile = sketch18
pad8.Length = 40
pad8.Reversed = True

# Sketch on XZ plane
sketch19 = body.newObject("Sketcher::SketchObject", "Sketch018")
sketch19.AttachmentSupport = (doc.getObject("XZ_Plane"), [""])
sketch19.MapMode = "FlatFace"
sketch19.AttachmentOffset = App.Placement(V(0, 0, -41), App.Rotation())
sketch19.addGeometry(Part.Circle(V(-30, -42, 0), V(0, 0, 1), 5), False)
sketch19.addConstraint([
    Sketcher.Constraint("DistanceX", 0, 3, -1, 1, Q("30.5 mm")),
    Sketcher.Constraint("Diameter", 0, Q("10.762827 mm")),
    Sketcher.Constraint("DistanceY", 0, 3, -1, 1, Q("42.186505 mm")),
])
pocket11 = body.newObject("PartDesign::Pocket", "Pocket010")
pocket11.Profile = sketch19
pocket11.Length = 5
pocket11.Reversed = True

# Sketch on XZ plane
sketch20 = body.newObject("Sketcher::SketchObject", "Sketch019")
sketch20.AttachmentSupport = (doc.getObject("XZ_Plane"), [""])
sketch20.MapMode = "FlatFace"
sketch20.AttachmentOffset = App.Placement(V(0, 0, -41), App.Rotation())
sketch20.addGeometry(Part.Circle(V(-30.5, -49.7, 0), V(0, 0, 1), 1), False)
sketch20.addConstraint([
    Sketcher.Constraint("Diameter", 0, Q("2.032499 mm")),
    Sketcher.Constraint("DistanceX", 0, 3, -1, 1, Q("30.5 mm")),
    Sketcher.Constraint("DistanceY", 0, 3, -1, 1, Q("49.674733 mm")),
])
pad9 = body.newObject("PartDesign::Pad", "Pad008")
pad9.Profile = sketch20
pad9.Length = 10
pad9.Reversed = True

# Sketch on XZ plane
sketch21 = body.newObject("Sketcher::SketchObject", "Sketch020")
sketch21.AttachmentSupport = (doc.getObject("XZ_Plane"), [""])
sketch21.MapMode = "FlatFace"
sketch21.AttachmentOffset = App.Placement(V(0, 0, -51), App.Rotation())
sketch21.addGeometry([
    Part.LineSegment(V(-29.5, -46.1, 0), V(-29.5, -49.7, 0)),
    Part.ArcOfCircle(Part.Circle(V(-30.5, -49.7, 0), V(0, 0, 1), 1), math.radians(-180), math.radians(0)),
    Part.LineSegment(V(-31.5, -49.7, 0), V(-31.5, -46.1, 0)),
    Part.ArcOfCircle(Part.Circle(V(-30.5, -46.1, 0), V(0, 0, 1), 1), math.radians(0), math.radians(180)),
], False)
sketch21.addConstraint([
    Sketcher.Constraint("Tangent", 0, 2, 1, 2),
    Sketcher.Constraint("Tangent", 1, 1, 2, 1),
    Sketcher.Constraint("Tangent", 2, 2, 3, 2),
    Sketcher.Constraint("Tangent", 3, 1, 0, 1),
    Sketcher.Constraint("Vertical", 0),
    Sketcher.Constraint("Vertical", 2),
    Sketcher.Constraint("DistanceX", 1, 3, -1, 1, Q("30.5 mm")),
    Sketcher.Constraint("Radius", 1, Q("0.996342 mm")),
    Sketcher.Constraint("DistanceY", 0, 2, 0, 1, Q("3.618829 mm")),
    Sketcher.Constraint("DistanceY", 1, 3, -1, 1, Q("49.674733 mm")),
])
pad10 = body.newObject("PartDesign::Pad", "Pad009")
pad10.Profile = sketch21
pad10.Length = 3
pad10.Reversed = True

# Sketch on XY plane
sketch22 = body.newObject("Sketcher::SketchObject", "Sketch021")
sketch22.AttachmentSupport = (doc.getObject("XY_Plane"), [""])
sketch22.MapMode = "FlatFace"
sketch22.AttachmentOffset = App.Placement(V(0, 0, -54), App.Rotation())
add_polygon(sketch22, [(-48, 105), (-48, 56), (-4, 56), (-4, 105)])  # lines 0-3
sketch22.addConstraint([
    Sketcher.Constraint("Vertical", 0),
    Sketcher.Constraint("Horizontal", 1),
    Sketcher.Constraint("Vertical", 2),
    Sketcher.Constraint("Horizontal", 3),
    Sketcher.Constraint("DistanceX", 1, 1, 1, 2, Q("44.189123 mm")),
    Sketcher.Constraint("DistanceY", 0, 2, 0, 1, Q("49.118533 mm")),
    Sketcher.Constraint("DistanceY", -1, 1, 0, 2, Q("55.752131 mm")),
    Sketcher.Constraint("DistanceX", 1, 2, -1, 1, Q("3.532119 mm")),
])
pad11 = body.newObject("PartDesign::Pad", "Pad010")
pad11.Profile = sketch22
pad11.Length = 2

# Sketch on XY plane
sketch23 = body.newObject("Sketcher::SketchObject", "Sketch022")
sketch23.AttachmentSupport = (doc.getObject("XY_Plane"), [""])
sketch23.MapMode = "FlatFace"
sketch23.AttachmentOffset = App.Placement(V(0, 0, 1), App.Rotation())
add_polygon(sketch23, [(-60, 120), (-60, 1), (-1, 1), (-1, 120)])  # lines 0-3
sketch23.addConstraint([
    Sketcher.Constraint("Vertical", 0),
    Sketcher.Constraint("Horizontal", 1),
    Sketcher.Constraint("Vertical", 2),
    Sketcher.Constraint("Horizontal", 3),
    Sketcher.Constraint("DistanceX", 1, 1, 1, 2, Q("59 mm")),
    Sketcher.Constraint("DistanceY", 0, 2, 0, 1, Q("119 mm")),
    Sketcher.Constraint("DistanceX", 0, 2, -1, 1, Q("60 mm")),
    Sketcher.Constraint("DistanceY", -1, 1, 0, 2, Q("1 mm")),
])
pocket12 = body.newObject("PartDesign::Pocket", "Pocket011")
pocket12.Profile = sketch23
pocket12.Length = 10

doc.recompute()
